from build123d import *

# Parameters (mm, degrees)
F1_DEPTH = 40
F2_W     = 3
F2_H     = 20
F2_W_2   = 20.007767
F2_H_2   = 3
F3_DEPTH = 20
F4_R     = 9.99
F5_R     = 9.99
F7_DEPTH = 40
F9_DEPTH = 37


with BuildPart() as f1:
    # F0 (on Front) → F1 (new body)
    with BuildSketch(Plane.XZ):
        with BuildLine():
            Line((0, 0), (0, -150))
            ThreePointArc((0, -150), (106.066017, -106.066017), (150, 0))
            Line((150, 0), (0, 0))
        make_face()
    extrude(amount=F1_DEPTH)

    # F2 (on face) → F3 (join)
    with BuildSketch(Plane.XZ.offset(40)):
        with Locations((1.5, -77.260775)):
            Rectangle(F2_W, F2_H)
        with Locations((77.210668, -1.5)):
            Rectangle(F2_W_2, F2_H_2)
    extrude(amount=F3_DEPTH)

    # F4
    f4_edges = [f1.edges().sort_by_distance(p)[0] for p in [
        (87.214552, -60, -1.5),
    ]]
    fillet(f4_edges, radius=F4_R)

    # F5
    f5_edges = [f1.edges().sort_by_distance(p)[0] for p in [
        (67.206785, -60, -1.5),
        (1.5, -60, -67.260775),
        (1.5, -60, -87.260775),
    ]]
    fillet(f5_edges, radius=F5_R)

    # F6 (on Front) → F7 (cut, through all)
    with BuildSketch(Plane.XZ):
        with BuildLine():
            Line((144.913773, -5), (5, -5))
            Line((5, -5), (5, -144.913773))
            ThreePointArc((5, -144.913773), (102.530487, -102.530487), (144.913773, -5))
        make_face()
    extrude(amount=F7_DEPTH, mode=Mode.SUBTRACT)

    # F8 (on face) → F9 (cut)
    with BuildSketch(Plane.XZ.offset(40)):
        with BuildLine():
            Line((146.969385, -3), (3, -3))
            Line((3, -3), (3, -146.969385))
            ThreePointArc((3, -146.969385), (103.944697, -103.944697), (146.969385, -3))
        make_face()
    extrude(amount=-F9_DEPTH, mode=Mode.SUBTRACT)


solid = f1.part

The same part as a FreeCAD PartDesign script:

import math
import FreeCAD as App
import Part
import Sketcher

V = App.Vector


def edges_at(feature, points):
    """Names of the edges that pass closest to the given points."""
    edges = feature.Shape.Edges
    near = lambda p: min(range(len(edges)), key=lambda i: edges[i].distToShape(Part.Vertex(*p))[0])
    return sorted({f"Edge{near(p) + 1}" for p in points})

doc = App.newDocument("Part")
body = doc.addObject("PartDesign::Body", "Body")

# Sketch on XZ plane
sketch1 = body.newObject("Sketcher::SketchObject", "Sketch")
sketch1.AttachmentSupport = (doc.getObject("XZ_Plane"), [""])
sketch1.MapMode = "FlatFace"
sketch1.addGeometry([
    Part.LineSegment(V(0, 0, 0), V(0, -150, 0)),
    Part.ArcOfCircle(Part.Circle(V(0, 0, 0), V(0, 0, 1), 150), math.radians(-90), math.radians(0)),
    Part.LineSegment(V(150, 0, 0), V(0, 0, 0)),
], False)
sketch1.addConstraint([
    Sketcher.Constraint("Coincident", 0, 2, 1, 1),
    Sketcher.Constraint("Coincident", 1, 2, 2, 1),
    Sketcher.Constraint("Coincident", 2, 2, 0, 1),
    Sketcher.Constraint("Vertical", 0),
    Sketcher.Constraint("Horizontal", 2),
    Sketcher.Constraint("Coincident", 1, 3, -1, 1),
    Sketcher.Constraint("Coincident", 2, 2, -1, 1),
    Sketcher.Constraint("Radius", 1, 150.000001),
])
pad1 = body.newObject("PartDesign::Pad", "Pad")
pad1.Profile = sketch1
pad1.Length = 40

# Sketch on XZ plane
sketch2 = body.newObject("Sketcher::SketchObject", "Sketch001")
sketch2.AttachmentSupport = (doc.getObject("XZ_Plane"), [""])
sketch2.MapMode = "FlatFace"
sketch2.AttachmentOffset = App.Placement(V(0, 0, 40), App.Rotation())
sketch2.addGeometry([
    Part.LineSegment(V(0, -67.3, 0), V(0, -87.3, 0)),  # 0
    Part.LineSegment(V(0, -87.3, 0), V(3, -87.3, 0)),  # 1
    Part.LineSegment(V(3, -87.3, 0), V(3, -67.3, 0)),  # 2
    Part.LineSegment(V(3, -67.3, 0), V(0, -67.3, 0)),  # 3
    Part.LineSegment(V(67.2, 0, 0), V(67.2, -3, 0)),  # 4
    Part.LineSegment(V(67.2, -3, 0), V(87.2, -3, 0)),  # 5
    Part.LineSegment(V(87.2, -3, 0), V(87.2, 0, 0)),  # 6
    Part.LineSegment(V(87.2, 0, 0), V(67.2, 0, 0)),  # 7
], False)
sketch2.addConstraint([
    Sketcher.Constraint("Coincident", 0, 2, 1, 1),
    Sketcher.Constraint("Coincident", 1, 2, 2, 1),
    Sketcher.Constraint("Coincident", 2, 2, 3, 1),
    Sketcher.Constraint("Coincident", 3, 2, 0, 1),
    Sketcher.Constraint("Coincident", 4, 2, 5, 1),
    Sketcher.Constraint("Coincident", 5, 2, 6, 1),
    Sketcher.Constraint("Coincident", 6, 2, 7, 1),
    Sketcher.Constraint("Coincident", 7, 2, 4, 1),
    Sketcher.Constraint("Vertical", 0),
    Sketcher.Constraint("Horizontal", 1),
    Sketcher.Constraint("Vertical", 2),
    Sketcher.Constraint("Horizontal", 3),
    Sketcher.Constraint("Vertical", 4),
    Sketcher.Constraint("Horizontal", 5),
    Sketcher.Constraint("Vertical", 6),
    Sketcher.Constraint("Horizontal", 7),
    Sketcher.Constraint("PointOnObject", 0, 2, -2),
    Sketcher.Constraint("PointOnObject", 6, 2, -1),
    Sketcher.Constraint("Equal", 3, 4),
    Sketcher.Constraint("DistanceX", 1, 1, 1, 2, 3.0),
    Sketcher.Constraint("DistanceY", 0, 2, 0, 1, 20.0),
    Sketcher.Constraint("DistanceX", 5, 1, 5, 2, 20.007767),
    Sketcher.Constraint("DistanceX", -1, 1, 5, 2, 87.214551),
    Sketcher.Constraint("DistanceY", 0, 2, -1, 1, 87.260775),
])
pad2 = body.newObject("PartDesign::Pad", "Pad001")
pad2.Profile = sketch2
pad2.Length = 20
doc.recompute()

fillet = body.newObject("PartDesign::Fillet", "Fillet")
fillet.Base = (pad2, edges_at(pad2, [(87.215, -60, -1.5)]))
fillet.Radius = 9.99
doc.recompute()

fillet2 = body.newObject("PartDesign::Fillet", "Fillet001")
fillet2.Base = (fillet, edges_at(fillet, [(67.207, -60, -1.5), (1.5, -60, -67.261), (1.5, -60, -87.261)]))
fillet2.Radius = 9.99

# Sketch on XZ plane
sketch3 = body.newObject("Sketcher::SketchObject", "Sketch002")
sketch3.AttachmentSupport = (doc.getObject("XZ_Plane"), [""])
sketch3.MapMode = "FlatFace"
sketch3.addGeometry([
    Part.LineSegment(V(145, -5, 0), V(5, -5, 0)),
    Part.LineSegment(V(5, -5, 0), V(5, -145, 0)),
    Part.ArcOfCircle(Part.Circle(V(0, 0, 0), V(0, 0, 1), 145), math.radians(-88), math.radians(-2)),
], False)
sketch3.addConstraint([
    Sketcher.Constraint("Coincident", 0, 2, 1, 1),
    Sketcher.Constraint("Coincident", 1, 2, 2, 1),
    Sketcher.Constraint("Coincident", 2, 2, 0, 1),
    Sketcher.Constraint("Horizontal", 0),
    Sketcher.Constraint("Vertical", 1),
    Sketcher.Constraint("Coincident", 2, 3, -1, 1),
    Sketcher.Constraint("Equal", 0, 1),
    Sketcher.Constraint("DistanceX", -1, 1, 0, 2, 5.0),
    Sketcher.Constraint("Radius", 2, 145.000006),
])
pocket1 = body.newObject("PartDesign::Pocket", "Pocket")
pocket1.Profile = sketch3
pocket1.Type = "ThroughAll"
pocket1.Reversed = True

# Sketch on XZ plane
sketch4 = body.newObject("Sketcher::SketchObject", "Sketch003")
sketch4.AttachmentSupport = (doc.getObject("XZ_Plane"), [""])
sketch4.MapMode = "FlatFace"
sketch4.AttachmentOffset = App.Placement(V(0, 0, 40), App.Rotation())
sketch4.addGeometry([
    Part.LineSegment(V(147, -3, 0), V(3, -3, 0)),
    Part.LineSegment(V(3, -3, 0), V(3, -147, 0)),
    Part.ArcOfCircle(Part.Circle(V(0, 0, 0), V(0, 0, 1), 147), math.radians(-89), math.radians(-1)),
], False)
sketch4.addConstraint([
    Sketcher.Constraint("Coincident", 0, 2, 1, 1),
    Sketcher.Constraint("Coincident", 1, 2, 2, 1),
    Sketcher.Constraint("Coincident", 2, 2, 0, 1),
    Sketcher.Constraint("Horizontal", 0),
    Sketcher.Constraint("Vertical", 1),
    Sketcher.Constraint("Coincident", 2, 3, -1, 1),
    Sketcher.Constraint("Equal", 0, 1),
    Sketcher.Constraint("Radius", 2, 147.000001),
    Sketcher.Constraint("DistanceX", -1, 1, 0, 2, 3.0),
])
pocket2 = body.newObject("PartDesign::Pocket", "Pocket001")
pocket2.Profile = sketch4
pocket2.Length = 37

doc.recompute()
